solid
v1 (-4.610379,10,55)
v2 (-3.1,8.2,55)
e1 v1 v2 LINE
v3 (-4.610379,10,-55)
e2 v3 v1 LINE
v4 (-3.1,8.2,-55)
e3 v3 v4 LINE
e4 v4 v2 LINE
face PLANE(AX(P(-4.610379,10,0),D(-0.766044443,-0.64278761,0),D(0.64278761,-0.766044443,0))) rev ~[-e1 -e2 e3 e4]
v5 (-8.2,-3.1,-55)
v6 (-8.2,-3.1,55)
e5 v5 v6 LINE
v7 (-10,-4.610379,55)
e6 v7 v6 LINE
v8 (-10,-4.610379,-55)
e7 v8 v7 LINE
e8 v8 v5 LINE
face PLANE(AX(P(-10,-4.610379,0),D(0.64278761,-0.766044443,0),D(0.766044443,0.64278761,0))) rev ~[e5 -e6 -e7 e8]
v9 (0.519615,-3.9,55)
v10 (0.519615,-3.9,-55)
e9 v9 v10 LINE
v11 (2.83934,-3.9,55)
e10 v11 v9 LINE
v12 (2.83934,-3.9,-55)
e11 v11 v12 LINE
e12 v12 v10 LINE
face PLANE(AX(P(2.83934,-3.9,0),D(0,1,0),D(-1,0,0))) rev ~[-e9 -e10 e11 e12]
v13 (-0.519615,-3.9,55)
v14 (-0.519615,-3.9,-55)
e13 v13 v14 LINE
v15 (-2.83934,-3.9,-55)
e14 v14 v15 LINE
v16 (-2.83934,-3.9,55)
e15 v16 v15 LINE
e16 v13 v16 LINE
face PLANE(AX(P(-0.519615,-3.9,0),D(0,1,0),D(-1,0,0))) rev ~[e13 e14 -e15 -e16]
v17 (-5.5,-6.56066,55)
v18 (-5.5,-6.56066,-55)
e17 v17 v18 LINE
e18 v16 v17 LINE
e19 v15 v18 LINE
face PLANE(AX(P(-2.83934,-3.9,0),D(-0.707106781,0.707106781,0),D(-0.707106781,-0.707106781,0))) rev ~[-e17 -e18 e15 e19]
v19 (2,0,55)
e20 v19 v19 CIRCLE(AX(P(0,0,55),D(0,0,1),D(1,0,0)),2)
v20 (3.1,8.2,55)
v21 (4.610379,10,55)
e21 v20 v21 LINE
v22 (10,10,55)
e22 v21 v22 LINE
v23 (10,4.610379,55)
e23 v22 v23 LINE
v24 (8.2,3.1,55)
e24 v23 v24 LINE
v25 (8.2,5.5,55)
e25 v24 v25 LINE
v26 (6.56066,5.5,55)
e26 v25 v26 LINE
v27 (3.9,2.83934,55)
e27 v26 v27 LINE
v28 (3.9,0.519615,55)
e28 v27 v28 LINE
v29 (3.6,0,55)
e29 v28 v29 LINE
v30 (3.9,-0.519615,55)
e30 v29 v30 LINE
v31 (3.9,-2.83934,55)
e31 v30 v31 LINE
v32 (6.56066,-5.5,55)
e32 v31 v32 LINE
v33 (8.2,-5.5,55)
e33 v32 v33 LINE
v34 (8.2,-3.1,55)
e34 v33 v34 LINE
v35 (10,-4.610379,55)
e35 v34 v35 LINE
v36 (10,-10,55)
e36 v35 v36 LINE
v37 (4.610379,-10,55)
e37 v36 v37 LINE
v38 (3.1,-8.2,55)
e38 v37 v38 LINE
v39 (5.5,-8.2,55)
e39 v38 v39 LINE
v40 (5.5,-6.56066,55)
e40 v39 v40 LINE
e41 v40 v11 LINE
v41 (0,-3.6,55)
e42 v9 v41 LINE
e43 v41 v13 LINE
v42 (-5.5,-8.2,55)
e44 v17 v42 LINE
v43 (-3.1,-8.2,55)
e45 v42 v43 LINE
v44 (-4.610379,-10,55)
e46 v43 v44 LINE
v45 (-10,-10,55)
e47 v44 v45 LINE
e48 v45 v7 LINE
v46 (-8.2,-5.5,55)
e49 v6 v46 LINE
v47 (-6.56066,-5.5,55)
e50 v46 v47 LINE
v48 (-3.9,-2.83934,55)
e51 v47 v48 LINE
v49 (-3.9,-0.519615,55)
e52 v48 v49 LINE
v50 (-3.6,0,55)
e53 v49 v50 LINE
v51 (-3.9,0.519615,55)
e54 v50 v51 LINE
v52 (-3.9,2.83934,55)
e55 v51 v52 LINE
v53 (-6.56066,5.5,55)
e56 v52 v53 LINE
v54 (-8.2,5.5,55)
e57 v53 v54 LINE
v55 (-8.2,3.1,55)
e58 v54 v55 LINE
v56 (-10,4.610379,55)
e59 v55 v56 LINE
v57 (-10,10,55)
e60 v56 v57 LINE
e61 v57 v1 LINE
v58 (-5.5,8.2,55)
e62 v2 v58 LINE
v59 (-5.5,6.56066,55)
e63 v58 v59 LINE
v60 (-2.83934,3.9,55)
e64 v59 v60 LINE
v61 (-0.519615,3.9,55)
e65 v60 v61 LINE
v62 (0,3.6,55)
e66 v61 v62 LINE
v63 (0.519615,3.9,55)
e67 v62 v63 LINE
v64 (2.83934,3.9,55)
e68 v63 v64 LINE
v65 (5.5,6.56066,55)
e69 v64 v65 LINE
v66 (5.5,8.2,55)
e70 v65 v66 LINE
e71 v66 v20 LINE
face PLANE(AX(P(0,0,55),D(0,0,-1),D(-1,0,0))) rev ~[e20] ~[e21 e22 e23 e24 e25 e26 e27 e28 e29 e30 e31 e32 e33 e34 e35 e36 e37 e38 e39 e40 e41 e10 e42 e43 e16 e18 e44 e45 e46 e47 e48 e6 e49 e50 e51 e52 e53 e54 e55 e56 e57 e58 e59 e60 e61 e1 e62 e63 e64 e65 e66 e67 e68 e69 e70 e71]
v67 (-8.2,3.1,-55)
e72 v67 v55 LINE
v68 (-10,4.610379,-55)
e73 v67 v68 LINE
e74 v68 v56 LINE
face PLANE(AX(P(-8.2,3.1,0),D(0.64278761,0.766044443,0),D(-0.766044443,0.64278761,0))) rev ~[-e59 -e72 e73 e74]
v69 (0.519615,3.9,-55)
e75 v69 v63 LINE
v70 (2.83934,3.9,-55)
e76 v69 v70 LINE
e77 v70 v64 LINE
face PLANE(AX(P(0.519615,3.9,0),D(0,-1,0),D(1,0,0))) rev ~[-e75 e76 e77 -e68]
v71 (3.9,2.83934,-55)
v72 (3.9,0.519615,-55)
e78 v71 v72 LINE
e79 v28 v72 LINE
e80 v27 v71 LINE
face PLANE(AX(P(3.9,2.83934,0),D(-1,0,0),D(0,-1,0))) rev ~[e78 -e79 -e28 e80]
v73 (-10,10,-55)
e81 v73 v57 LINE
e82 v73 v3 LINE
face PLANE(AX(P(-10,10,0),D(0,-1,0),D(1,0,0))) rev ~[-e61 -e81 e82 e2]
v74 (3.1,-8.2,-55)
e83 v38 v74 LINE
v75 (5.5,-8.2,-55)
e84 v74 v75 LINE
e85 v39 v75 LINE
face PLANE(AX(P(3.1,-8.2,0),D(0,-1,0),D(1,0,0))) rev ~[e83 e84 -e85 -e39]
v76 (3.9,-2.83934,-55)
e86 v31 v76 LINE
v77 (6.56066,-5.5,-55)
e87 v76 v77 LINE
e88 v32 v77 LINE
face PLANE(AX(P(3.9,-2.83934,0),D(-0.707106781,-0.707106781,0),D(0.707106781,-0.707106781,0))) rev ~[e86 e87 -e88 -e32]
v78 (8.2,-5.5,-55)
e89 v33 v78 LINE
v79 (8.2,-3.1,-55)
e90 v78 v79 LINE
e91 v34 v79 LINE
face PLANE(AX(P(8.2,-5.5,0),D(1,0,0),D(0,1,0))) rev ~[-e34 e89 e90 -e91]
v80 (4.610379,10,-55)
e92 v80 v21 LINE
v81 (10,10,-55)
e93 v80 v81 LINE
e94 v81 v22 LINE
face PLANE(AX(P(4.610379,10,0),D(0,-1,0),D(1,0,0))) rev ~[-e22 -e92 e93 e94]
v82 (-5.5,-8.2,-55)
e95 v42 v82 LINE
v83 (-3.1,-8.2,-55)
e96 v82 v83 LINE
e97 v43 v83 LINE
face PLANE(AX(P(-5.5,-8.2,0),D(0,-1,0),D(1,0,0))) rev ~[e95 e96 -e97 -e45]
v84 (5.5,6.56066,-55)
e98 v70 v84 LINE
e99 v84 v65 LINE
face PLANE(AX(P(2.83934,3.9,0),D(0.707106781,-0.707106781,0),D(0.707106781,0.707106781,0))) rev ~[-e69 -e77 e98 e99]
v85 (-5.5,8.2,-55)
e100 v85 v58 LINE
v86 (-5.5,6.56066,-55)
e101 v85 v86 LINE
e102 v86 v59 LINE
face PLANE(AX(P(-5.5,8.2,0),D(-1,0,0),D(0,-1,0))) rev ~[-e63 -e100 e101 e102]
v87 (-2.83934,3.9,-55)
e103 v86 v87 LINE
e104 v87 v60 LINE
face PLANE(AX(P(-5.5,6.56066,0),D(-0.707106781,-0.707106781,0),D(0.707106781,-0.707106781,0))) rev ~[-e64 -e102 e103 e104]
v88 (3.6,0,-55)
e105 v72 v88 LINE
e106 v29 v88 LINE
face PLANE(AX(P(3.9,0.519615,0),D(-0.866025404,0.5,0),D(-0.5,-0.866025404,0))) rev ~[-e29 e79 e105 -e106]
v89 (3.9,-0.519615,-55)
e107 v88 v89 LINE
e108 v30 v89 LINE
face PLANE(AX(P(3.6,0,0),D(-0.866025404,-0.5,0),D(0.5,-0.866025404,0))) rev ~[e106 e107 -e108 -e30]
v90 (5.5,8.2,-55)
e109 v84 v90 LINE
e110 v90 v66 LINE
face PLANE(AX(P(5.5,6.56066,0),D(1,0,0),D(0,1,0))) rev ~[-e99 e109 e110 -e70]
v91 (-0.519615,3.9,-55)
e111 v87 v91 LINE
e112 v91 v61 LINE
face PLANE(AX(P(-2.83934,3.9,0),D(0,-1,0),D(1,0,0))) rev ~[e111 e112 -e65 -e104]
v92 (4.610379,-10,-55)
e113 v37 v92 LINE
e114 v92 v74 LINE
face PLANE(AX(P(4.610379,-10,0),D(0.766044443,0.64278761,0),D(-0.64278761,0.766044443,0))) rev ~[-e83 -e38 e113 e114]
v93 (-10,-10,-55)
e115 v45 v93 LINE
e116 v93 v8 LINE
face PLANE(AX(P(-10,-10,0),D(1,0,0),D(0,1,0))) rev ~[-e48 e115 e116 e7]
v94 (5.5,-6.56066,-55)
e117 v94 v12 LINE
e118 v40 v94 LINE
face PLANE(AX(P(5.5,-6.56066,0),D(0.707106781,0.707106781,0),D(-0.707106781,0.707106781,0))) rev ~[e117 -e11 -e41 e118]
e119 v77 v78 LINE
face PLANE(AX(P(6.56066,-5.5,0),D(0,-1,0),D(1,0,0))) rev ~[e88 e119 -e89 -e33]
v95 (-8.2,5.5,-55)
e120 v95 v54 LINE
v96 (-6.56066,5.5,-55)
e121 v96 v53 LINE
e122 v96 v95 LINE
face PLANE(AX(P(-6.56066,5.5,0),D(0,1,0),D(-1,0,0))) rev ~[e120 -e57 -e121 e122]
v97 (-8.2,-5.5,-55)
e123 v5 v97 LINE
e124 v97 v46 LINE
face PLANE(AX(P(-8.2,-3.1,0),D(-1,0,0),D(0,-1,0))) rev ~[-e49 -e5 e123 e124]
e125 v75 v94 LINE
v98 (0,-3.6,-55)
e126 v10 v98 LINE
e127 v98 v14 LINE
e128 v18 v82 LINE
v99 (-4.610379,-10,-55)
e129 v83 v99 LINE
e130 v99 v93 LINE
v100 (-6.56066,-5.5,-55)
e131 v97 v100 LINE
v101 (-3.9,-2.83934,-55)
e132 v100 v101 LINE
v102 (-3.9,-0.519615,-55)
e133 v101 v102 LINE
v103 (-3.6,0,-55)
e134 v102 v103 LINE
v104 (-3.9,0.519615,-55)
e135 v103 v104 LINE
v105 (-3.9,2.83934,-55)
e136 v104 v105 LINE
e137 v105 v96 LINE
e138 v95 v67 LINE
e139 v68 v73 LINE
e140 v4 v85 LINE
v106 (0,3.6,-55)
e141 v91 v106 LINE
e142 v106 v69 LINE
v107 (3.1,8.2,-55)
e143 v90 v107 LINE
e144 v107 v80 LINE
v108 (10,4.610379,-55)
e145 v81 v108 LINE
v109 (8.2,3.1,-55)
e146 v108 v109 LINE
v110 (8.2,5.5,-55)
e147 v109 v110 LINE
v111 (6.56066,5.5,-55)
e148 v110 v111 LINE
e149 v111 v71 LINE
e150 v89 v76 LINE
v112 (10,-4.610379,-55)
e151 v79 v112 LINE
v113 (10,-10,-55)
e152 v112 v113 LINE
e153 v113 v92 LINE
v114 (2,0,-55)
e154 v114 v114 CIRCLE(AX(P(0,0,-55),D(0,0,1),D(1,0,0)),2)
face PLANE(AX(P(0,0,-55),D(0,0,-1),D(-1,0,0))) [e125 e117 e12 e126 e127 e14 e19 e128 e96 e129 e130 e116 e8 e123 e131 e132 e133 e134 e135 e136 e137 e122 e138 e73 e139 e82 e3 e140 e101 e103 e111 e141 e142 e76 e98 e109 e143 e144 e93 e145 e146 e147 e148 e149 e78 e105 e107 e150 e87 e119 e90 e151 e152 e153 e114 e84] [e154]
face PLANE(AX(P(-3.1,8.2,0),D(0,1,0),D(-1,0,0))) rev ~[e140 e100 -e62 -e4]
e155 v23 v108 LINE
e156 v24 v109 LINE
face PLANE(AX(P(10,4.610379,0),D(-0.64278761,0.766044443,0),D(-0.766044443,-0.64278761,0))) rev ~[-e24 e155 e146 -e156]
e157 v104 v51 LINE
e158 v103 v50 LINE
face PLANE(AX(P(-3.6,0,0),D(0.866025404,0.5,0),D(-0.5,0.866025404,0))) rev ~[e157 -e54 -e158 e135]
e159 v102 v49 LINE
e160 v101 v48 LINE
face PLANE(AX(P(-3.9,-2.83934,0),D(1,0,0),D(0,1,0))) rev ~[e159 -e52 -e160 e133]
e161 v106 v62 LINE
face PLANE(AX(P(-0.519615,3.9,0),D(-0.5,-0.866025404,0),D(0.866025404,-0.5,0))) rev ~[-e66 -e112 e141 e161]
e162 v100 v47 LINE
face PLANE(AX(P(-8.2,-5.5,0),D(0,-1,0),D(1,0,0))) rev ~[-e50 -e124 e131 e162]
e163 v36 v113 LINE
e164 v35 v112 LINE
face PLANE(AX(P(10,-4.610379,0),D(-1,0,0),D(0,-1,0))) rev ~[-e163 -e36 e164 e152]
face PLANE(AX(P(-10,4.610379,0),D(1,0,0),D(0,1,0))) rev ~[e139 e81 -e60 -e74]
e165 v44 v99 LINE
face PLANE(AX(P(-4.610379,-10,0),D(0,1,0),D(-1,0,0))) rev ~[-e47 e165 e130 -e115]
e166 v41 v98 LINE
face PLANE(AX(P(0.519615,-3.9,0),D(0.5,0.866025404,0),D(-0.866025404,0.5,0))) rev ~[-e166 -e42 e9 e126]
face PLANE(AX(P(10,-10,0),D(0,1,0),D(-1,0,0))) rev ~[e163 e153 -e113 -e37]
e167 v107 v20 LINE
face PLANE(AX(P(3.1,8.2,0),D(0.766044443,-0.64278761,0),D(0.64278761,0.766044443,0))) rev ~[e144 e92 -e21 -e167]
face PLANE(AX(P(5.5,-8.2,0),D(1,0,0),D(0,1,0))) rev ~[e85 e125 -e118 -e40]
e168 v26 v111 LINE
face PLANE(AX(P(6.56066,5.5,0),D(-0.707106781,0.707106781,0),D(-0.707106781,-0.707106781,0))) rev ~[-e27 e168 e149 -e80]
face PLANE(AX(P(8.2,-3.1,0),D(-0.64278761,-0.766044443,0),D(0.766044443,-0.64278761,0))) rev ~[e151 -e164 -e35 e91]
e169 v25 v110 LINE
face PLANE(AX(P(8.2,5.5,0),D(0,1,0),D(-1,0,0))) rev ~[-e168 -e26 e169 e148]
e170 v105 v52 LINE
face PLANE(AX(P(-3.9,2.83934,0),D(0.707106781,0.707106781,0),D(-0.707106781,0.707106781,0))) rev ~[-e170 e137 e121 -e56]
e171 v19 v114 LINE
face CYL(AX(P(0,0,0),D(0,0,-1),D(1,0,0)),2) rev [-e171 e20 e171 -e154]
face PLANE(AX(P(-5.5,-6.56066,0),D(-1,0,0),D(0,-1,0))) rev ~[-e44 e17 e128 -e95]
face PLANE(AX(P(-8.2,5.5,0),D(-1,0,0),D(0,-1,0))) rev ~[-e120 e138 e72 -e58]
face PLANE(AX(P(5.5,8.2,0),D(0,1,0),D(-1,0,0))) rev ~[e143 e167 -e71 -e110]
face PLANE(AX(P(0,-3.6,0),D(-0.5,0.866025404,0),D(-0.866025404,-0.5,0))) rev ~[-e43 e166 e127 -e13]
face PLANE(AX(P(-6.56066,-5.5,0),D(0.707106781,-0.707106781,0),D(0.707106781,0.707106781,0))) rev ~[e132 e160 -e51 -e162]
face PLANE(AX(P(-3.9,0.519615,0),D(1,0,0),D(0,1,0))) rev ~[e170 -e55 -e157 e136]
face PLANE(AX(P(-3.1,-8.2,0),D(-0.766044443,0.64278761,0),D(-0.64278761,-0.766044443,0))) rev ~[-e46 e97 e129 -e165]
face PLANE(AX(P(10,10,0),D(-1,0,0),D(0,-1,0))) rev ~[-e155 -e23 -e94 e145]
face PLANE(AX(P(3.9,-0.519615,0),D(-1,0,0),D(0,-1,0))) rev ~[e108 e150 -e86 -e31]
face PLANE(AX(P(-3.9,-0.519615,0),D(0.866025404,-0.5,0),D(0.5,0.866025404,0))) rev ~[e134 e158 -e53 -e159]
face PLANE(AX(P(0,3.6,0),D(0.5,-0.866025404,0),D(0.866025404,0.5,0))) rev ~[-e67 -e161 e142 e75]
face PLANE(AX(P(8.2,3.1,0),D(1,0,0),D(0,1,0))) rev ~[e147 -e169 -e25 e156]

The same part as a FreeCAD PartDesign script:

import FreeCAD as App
import Part
import Sketcher

V = App.Vector
Q = App.Units.Quantity


def add_polygon(sketch, points):
    """Adds a closed chain of lines whose ends are joined by coincident constraints."""
    first, n = sketch.GeometryCount, len(points)
    for a, b in zip(points, points[1:] + points[:1]):
        sketch.addGeometry(Part.LineSegment(App.Vector(*a, 0), App.Vector(*b, 0)), False)
    for i in range(n):
        sketch.addConstraint(Sketcher.Constraint("Coincident", first + i, 2, first + (i + 1) % n, 1))

doc = App.newDocument("Part")
body = doc.addObject("PartDesign::Body", "Body")

# Sketch on XY plane
sketch1 = doc.addObject("Sketcher::SketchObject", "Sketch")
body.addObject(sketch1)
sketch1.AttachmentSupport = (doc.XY_Plane, [""])
sketch1.MapMode = "FlatFace"
add_polygon(sketch1, [(10, 4.6), (10, 10), (4.6, 10), (3.1, 8.2), (5.5, 8.2), (5.5, 6.6), (2.8, 3.9), (0.5, 3.9), (0, 3.6), (-0.5, 3.9), (-2.8, 3.9), (-5.5, 6.6), (-5.5, 8.2), (-3.1, 8.2), (-4.6, 10), (-10, 10), (-10, 4.6), (-8.2, 3.1), (-8.2, 5.5), (-6.6, 5.5), (-3.9, 2.8), (-3.9, 0.5), (-3.6, 0), (-3.9, -0.5), (-3.9, -2.8), (-6.6, -5.5), (-8.2, -5.5), (-8.2, -3.1), (-10, -4.6), (-10, -10), (-4.6, -10), (-3.1, -8.2), (-5.5, -8.2), (-5.5, -6.6), (-2.8, -3.9), (-0.5, -3.9), (0, -3.6), (0.5, -3.9), (2.8, -3.9), (5.5, -6.6), (5.5, -8.2), (3.1, -8.2), (4.6, -10), (10, -10), (10, -4.6), (8.2, -3.1), (8.2, -5.5), (6.6, -5.5), (3.9, -2.8), (3.9, -0.5), (3.6, 0), (3.9, 0.5), (3.9, 2.8), (6.6, 5.5), (8.2, 5.5), (8.2, 3.1)])  # lines 0-55
sketch1.addGeometry(Part.Circle(V(0, 0, 0), V(0, 0, 1), 2), False)  # 56
sketch1.addConstraint([
    Sketcher.Constraint("Vertical", 0),
    Sketcher.Constraint("Horizontal", 1),
    Sketcher.Constraint("Horizontal", 3),
    Sketcher.Constraint("Vertical", 4),
    Sketcher.Constraint("Horizontal", 6),
    Sketcher.Constraint("Horizontal", 9),
    Sketcher.Constraint("Vertical", 11),
    Sketcher.Constraint("Horizontal", 12),
    Sketcher.Constraint("Horizontal", 14),
    Sketcher.Constraint("Vertical", 15),
    Sketcher.Constraint("Vertical", 17),
    Sketcher.Constraint("Horizontal", 18),
    Sketcher.Constraint("Vertical", 20),
    Sketcher.Constraint("Vertical", 23),
    Sketcher.Constraint("Horizontal", 25),
    Sketcher.Constraint("Vertical", 26),
    Sketcher.Constraint("Vertical", 28),
    Sketcher.Constraint("Horizontal", 29),
    Sketcher.Constraint("Horizontal", 31),
    Sketcher.Constraint("Vertical", 32),
    Sketcher.Constraint("Horizontal", 34),
    Sketcher.Constraint("Horizontal", 37),
    Sketcher.Constraint("Vertical", 39),
    Sketcher.Constraint("Horizontal", 40),
    Sketcher.Constraint("Horizontal", 42),
    Sketcher.Constraint("Vertical", 43),
    Sketcher.Constraint("Vertical", 45),
    Sketcher.Constraint("Horizontal", 46),
    Sketcher.Constraint("Vertical", 48),
    Sketcher.Constraint("Vertical", 51),
    Sketcher.Constraint("Horizontal", 53),
    Sketcher.Constraint("Vertical", 54),
    Sketcher.Constraint("Coincident", 56, 3, -1, 1),
    Sketcher.Constraint("Symmetric", 0, 2, 28, 2, -1, 1),
    Sketcher.Constraint("Symmetric", 2, 2, 30, 2, -1, 1),
    Sketcher.Constraint("Symmetric", 4, 2, 32, 2, -1, 1),
    Sketcher.Constraint("Symmetric", 5, 2, 33, 2, -1, 1),
    Sketcher.Constraint("Symmetric", 7, 2, 35, 2, -1, 1),
    Sketcher.Constraint("Symmetric", 8, 2, 36, 2, -1, 1),
    Sketcher.Constraint("Symmetric", 10, 2, 38, 2, -1, 1),
    Sketcher.Constraint("Symmetric", 12, 2, 40, 2, -1, 1),
    Sketcher.Constraint("Symmetric", 13, 2, 41, 2, -1, 1),
    Sketcher.Constraint("Symmetric", 15, 2, 43, 2, -1, 1),
    Sketcher.Constraint("Symmetric", 16, 2, 44, 2, -1, 1),
    Sketcher.Constraint("Symmetric", 18, 2, 46, 2, -1, 1),
    Sketcher.Constraint("Symmetric", 19, 2, 47, 2, -1, 1),
    Sketcher.Constraint("Symmetric", 21, 2, 49, 2, -1, 1),
    Sketcher.Constraint("Symmetric", 22, 2, 50, 2, -1, 1),
    Sketcher.Constraint("Symmetric", 24, 2, 52, 2, -1, 1),
    Sketcher.Constraint("Symmetric", 26, 2, 54, 2, -1, 1),
    Sketcher.Constraint("Symmetric", 6, 2, 8, 2, -2),
    Sketcher.Constraint("Symmetric", 4, 2, 10, 2, -2),
    Sketcher.Constraint("Symmetric", 2, 2, 12, 2, -2),
    Sketcher.Constraint("Symmetric", 1, 2, 13, 2, -2),
    Sketcher.Constraint("Symmetric", 27, 2, 43, 2, -2),
    Sketcher.Constraint("Symmetric", 26, 2, 44, 2, -2),
    Sketcher.Constraint("Symmetric", 24, 2, 46, 2, -2),
    Sketcher.Constraint("Symmetric", 23, 2, 47, 2, -2),
    Sketcher.Constraint("PointOnObject", 7, 2, -2),
    Sketcher.Constraint("PointOnObject", 21, 2, -1),
    Sketcher.Constraint("Perpendicular", 5, 10),
    Sketcher.Constraint("Perpendicular", 2, 16),
    Sketcher.Constraint("Parallel", 10, 19),
    Sketcher.Constraint("Perpendicular", 7, 21),
    Sketcher.Constraint("Perpendicular", 8, 22),
    Sketcher.Constraint("Perpendicular", 19, 24),
    Sketcher.Constraint("Perpendicular", 16, 30),
    Sketcher.Constraint("Perpendicular", 21, 35),
    Sketcher.Constraint("Perpendicular", 33, 38),
    Sketcher.Constraint("Perpendicular", 35, 49),
    Sketcher.Constraint("Perpendicular", 47, 52),
    Sketcher.Constraint("Perpendicular", 41, 55),
    Sketcher.Constraint("Equal", 42, 0),
    Sketcher.Constraint("Equal", 53, 4),
    Sketcher.Constraint("Equal", 40, 17),
    Sketcher.Constraint("Equal", 37, 20),
    Sketcher.Constraint("Equal", 13, 16),
    Sketcher.Constraint("Equal", 10, 19),
    Sketcher.Constraint("Equal", 8, 21),
    Sketcher.Constraint("Diameter", 56, Q("4 mm")),
    Sketcher.Constraint("Angle", 2, Q("-130 deg")),
    Sketcher.Constraint("Angle", 7, Q("-150 deg")),
    Sketcher.Constraint("DistanceX", 3, 1, 3, 2, Q("2.4 mm")),
    Sketcher.Constraint("DistanceX", -1, 1, 0, 2, Q("10 mm")),
    Sketcher.Constraint("Distance", 7, Q("0.6 mm")),
    Sketcher.Constraint("DistanceX", -1, 1, 2, 2, Q("3.1 mm")),
    Sketcher.Constraint("DistanceY", -1, 1, 2, 2, Q("8.2 mm")),
    Sketcher.Constraint("DistanceY", -1, 1, 5, 2, Q("3.9 mm")),
    Sketcher.Constraint("DistanceX", 18, 1, 18, 2, Q("1.63934 mm")),
])
pad1 = doc.addObject("PartDesign::Pad", "Pad")
body.addObject(pad1)
pad1.Profile = sketch1
pad1.Length = 110
pad1.Midplane = True

doc.recompute()
